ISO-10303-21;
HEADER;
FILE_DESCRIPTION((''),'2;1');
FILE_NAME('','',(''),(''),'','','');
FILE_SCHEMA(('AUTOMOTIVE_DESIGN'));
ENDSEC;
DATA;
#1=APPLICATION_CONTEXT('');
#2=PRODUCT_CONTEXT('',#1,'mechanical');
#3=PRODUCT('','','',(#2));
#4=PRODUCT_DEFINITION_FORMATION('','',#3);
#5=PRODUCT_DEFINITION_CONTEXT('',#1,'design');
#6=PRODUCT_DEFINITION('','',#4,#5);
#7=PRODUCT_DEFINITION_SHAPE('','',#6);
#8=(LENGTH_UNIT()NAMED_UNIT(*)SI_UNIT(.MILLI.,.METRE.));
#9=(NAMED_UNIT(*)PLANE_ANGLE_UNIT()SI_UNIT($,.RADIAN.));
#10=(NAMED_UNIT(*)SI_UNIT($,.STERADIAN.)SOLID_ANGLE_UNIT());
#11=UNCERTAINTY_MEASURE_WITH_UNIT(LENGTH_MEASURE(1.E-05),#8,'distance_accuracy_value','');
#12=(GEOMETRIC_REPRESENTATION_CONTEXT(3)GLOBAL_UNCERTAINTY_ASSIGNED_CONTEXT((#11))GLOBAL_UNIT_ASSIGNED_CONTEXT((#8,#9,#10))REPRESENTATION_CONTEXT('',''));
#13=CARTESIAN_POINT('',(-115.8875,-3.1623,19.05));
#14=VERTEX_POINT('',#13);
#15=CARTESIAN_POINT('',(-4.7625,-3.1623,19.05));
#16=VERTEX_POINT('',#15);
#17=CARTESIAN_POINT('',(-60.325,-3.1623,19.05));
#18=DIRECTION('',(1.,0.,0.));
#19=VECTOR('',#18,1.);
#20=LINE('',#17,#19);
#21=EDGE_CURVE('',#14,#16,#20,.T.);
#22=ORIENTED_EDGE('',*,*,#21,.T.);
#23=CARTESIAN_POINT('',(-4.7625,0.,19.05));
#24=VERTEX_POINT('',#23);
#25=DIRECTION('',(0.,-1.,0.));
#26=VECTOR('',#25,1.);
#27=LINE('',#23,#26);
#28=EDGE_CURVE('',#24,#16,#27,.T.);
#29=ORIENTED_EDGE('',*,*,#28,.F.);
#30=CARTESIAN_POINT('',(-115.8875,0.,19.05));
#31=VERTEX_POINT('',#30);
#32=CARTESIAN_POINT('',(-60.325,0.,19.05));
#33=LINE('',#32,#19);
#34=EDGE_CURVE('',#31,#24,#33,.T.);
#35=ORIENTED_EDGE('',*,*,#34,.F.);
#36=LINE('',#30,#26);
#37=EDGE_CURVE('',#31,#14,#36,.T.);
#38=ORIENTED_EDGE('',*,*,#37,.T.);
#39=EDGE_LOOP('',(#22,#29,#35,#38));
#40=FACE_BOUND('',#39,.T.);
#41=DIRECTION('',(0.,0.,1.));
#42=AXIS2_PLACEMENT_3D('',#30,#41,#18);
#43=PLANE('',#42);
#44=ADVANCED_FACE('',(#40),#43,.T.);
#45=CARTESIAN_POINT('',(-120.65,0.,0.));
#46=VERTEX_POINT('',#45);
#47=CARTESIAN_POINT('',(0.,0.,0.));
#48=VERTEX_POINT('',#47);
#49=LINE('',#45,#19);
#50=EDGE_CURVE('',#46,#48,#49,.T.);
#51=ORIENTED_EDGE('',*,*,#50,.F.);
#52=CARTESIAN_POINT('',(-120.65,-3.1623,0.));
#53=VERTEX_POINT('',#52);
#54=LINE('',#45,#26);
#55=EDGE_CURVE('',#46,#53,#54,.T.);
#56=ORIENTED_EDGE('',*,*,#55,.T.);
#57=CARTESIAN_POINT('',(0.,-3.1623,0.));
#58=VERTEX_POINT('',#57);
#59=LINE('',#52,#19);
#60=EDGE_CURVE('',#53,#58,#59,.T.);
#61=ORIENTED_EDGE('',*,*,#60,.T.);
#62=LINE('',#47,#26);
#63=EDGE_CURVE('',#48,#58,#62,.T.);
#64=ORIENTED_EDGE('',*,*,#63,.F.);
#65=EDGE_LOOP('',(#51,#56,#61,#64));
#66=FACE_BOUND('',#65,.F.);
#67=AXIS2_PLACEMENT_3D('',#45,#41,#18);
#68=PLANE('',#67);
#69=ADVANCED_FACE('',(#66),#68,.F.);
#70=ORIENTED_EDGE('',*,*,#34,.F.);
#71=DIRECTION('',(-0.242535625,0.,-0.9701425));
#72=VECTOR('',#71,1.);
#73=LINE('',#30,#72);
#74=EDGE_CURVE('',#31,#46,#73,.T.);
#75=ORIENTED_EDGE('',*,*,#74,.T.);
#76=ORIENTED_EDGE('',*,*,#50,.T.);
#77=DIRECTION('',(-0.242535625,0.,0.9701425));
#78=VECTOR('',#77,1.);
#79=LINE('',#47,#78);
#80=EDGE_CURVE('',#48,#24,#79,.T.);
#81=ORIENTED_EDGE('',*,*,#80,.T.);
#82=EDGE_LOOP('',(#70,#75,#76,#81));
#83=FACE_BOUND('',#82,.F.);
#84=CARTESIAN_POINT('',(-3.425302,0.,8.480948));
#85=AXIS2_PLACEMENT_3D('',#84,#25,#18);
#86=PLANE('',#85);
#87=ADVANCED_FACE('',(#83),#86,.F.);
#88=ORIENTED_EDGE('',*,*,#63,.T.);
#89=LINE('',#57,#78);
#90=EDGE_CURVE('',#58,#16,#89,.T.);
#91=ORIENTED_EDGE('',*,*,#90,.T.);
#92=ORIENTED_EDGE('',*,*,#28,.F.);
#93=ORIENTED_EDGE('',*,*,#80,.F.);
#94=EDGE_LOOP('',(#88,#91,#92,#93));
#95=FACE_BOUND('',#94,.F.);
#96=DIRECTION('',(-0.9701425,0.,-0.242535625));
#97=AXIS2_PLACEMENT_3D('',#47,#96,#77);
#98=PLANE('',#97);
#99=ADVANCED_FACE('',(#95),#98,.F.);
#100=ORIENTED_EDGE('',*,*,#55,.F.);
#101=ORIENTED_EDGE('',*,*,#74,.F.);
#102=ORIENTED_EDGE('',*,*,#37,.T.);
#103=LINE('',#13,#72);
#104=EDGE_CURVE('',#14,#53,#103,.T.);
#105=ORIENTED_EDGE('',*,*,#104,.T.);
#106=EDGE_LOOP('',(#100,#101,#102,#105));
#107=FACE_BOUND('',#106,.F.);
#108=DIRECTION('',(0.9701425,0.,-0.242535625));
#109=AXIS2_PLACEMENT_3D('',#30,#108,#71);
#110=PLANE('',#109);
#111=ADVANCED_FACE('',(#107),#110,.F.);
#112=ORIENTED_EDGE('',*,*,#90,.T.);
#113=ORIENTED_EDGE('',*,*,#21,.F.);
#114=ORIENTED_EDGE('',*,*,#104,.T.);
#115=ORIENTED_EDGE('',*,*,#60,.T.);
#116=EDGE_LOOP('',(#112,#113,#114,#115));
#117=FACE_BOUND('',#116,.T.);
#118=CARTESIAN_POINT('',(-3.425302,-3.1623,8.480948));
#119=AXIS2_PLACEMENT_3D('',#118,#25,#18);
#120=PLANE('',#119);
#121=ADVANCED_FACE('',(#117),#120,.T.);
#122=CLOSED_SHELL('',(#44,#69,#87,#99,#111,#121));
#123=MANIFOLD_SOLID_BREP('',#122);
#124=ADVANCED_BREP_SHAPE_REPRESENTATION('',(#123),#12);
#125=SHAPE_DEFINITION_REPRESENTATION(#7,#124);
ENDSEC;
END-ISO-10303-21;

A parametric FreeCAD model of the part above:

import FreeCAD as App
import Part
import Sketcher
Q = App.Units.Quantity

doc = App.newDocument("Part")
params = doc.addObject("Spreadsheet::Sheet", "Params")
for row, (alias, value) in enumerate([
    ("sketch1_width", "4.75 in"),
    ("sketch1_width2", "4.375 in"),
    ("pad1_length", "0.1245 in"),
], start=1):
    params.set(f"A{row}", alias)
    params.set(f"B{row}", "=" + value)
    params.setAlias(f"B{row}", alias)

body = doc.addObject("PartDesign::Body", "Body")

# Sketch on XZ plane
sketch1 = body.newObject("Sketcher::SketchObject", "Sketch")
sketch1.AttachmentSupport = (doc.getObject("XZ_Plane"), [""])
sketch1.MapMode = "FlatFace"
sketch1.addGeometry([
    Part.LineSegment(App.Vector(0, 0, 0), App.Vector(-5, 19, 0)),
    Part.LineSegment(App.Vector(-5, 19, 0), App.Vector(-116, 19, 0)),
    Part.LineSegment(App.Vector(-116, 19, 0), App.Vector(-121, 0, 0)),
    Part.LineSegment(App.Vector(-121, 0, 0), App.Vector(0, 0, 0)),
], False)
sketch1.addConstraint([
    Sketcher.Constraint("Coincident", 0, 2, 1, 1),
    Sketcher.Constraint("Coincident", 1, 2, 2, 1),
    Sketcher.Constraint("Coincident", 2, 2, 3, 1),
    Sketcher.Constraint("Coincident", 3, 2, 0, 1),
    Sketcher.Constraint("Horizontal", 1),
    Sketcher.Constraint("Horizontal", 3),
    Sketcher.Constraint("Coincident", 3, 2, -1, 1),
    Sketcher.Constraint("Equal", 0, 2),
    Sketcher.Constraint("DistanceX", 3, 1, 3, 2, Q("4.75 in")),
    Sketcher.Constraint("DistanceX", 1, 2, 1, 1, Q("4.375 in")),
    Sketcher.Constraint("DistanceY", -1, 1, 0, 2, Q("0.75 in")),
])
sketch1.setExpression("Constraints[8]", "Params.sketch1_width")
sketch1.setExpression("Constraints[9]", "Params.sketch1_width2")
pad1 = body.newObject("PartDesign::Pad", "Pad")
pad1.Profile = sketch1
pad1.setExpression("Length", "Params.pad1_length")

doc.recompute()
